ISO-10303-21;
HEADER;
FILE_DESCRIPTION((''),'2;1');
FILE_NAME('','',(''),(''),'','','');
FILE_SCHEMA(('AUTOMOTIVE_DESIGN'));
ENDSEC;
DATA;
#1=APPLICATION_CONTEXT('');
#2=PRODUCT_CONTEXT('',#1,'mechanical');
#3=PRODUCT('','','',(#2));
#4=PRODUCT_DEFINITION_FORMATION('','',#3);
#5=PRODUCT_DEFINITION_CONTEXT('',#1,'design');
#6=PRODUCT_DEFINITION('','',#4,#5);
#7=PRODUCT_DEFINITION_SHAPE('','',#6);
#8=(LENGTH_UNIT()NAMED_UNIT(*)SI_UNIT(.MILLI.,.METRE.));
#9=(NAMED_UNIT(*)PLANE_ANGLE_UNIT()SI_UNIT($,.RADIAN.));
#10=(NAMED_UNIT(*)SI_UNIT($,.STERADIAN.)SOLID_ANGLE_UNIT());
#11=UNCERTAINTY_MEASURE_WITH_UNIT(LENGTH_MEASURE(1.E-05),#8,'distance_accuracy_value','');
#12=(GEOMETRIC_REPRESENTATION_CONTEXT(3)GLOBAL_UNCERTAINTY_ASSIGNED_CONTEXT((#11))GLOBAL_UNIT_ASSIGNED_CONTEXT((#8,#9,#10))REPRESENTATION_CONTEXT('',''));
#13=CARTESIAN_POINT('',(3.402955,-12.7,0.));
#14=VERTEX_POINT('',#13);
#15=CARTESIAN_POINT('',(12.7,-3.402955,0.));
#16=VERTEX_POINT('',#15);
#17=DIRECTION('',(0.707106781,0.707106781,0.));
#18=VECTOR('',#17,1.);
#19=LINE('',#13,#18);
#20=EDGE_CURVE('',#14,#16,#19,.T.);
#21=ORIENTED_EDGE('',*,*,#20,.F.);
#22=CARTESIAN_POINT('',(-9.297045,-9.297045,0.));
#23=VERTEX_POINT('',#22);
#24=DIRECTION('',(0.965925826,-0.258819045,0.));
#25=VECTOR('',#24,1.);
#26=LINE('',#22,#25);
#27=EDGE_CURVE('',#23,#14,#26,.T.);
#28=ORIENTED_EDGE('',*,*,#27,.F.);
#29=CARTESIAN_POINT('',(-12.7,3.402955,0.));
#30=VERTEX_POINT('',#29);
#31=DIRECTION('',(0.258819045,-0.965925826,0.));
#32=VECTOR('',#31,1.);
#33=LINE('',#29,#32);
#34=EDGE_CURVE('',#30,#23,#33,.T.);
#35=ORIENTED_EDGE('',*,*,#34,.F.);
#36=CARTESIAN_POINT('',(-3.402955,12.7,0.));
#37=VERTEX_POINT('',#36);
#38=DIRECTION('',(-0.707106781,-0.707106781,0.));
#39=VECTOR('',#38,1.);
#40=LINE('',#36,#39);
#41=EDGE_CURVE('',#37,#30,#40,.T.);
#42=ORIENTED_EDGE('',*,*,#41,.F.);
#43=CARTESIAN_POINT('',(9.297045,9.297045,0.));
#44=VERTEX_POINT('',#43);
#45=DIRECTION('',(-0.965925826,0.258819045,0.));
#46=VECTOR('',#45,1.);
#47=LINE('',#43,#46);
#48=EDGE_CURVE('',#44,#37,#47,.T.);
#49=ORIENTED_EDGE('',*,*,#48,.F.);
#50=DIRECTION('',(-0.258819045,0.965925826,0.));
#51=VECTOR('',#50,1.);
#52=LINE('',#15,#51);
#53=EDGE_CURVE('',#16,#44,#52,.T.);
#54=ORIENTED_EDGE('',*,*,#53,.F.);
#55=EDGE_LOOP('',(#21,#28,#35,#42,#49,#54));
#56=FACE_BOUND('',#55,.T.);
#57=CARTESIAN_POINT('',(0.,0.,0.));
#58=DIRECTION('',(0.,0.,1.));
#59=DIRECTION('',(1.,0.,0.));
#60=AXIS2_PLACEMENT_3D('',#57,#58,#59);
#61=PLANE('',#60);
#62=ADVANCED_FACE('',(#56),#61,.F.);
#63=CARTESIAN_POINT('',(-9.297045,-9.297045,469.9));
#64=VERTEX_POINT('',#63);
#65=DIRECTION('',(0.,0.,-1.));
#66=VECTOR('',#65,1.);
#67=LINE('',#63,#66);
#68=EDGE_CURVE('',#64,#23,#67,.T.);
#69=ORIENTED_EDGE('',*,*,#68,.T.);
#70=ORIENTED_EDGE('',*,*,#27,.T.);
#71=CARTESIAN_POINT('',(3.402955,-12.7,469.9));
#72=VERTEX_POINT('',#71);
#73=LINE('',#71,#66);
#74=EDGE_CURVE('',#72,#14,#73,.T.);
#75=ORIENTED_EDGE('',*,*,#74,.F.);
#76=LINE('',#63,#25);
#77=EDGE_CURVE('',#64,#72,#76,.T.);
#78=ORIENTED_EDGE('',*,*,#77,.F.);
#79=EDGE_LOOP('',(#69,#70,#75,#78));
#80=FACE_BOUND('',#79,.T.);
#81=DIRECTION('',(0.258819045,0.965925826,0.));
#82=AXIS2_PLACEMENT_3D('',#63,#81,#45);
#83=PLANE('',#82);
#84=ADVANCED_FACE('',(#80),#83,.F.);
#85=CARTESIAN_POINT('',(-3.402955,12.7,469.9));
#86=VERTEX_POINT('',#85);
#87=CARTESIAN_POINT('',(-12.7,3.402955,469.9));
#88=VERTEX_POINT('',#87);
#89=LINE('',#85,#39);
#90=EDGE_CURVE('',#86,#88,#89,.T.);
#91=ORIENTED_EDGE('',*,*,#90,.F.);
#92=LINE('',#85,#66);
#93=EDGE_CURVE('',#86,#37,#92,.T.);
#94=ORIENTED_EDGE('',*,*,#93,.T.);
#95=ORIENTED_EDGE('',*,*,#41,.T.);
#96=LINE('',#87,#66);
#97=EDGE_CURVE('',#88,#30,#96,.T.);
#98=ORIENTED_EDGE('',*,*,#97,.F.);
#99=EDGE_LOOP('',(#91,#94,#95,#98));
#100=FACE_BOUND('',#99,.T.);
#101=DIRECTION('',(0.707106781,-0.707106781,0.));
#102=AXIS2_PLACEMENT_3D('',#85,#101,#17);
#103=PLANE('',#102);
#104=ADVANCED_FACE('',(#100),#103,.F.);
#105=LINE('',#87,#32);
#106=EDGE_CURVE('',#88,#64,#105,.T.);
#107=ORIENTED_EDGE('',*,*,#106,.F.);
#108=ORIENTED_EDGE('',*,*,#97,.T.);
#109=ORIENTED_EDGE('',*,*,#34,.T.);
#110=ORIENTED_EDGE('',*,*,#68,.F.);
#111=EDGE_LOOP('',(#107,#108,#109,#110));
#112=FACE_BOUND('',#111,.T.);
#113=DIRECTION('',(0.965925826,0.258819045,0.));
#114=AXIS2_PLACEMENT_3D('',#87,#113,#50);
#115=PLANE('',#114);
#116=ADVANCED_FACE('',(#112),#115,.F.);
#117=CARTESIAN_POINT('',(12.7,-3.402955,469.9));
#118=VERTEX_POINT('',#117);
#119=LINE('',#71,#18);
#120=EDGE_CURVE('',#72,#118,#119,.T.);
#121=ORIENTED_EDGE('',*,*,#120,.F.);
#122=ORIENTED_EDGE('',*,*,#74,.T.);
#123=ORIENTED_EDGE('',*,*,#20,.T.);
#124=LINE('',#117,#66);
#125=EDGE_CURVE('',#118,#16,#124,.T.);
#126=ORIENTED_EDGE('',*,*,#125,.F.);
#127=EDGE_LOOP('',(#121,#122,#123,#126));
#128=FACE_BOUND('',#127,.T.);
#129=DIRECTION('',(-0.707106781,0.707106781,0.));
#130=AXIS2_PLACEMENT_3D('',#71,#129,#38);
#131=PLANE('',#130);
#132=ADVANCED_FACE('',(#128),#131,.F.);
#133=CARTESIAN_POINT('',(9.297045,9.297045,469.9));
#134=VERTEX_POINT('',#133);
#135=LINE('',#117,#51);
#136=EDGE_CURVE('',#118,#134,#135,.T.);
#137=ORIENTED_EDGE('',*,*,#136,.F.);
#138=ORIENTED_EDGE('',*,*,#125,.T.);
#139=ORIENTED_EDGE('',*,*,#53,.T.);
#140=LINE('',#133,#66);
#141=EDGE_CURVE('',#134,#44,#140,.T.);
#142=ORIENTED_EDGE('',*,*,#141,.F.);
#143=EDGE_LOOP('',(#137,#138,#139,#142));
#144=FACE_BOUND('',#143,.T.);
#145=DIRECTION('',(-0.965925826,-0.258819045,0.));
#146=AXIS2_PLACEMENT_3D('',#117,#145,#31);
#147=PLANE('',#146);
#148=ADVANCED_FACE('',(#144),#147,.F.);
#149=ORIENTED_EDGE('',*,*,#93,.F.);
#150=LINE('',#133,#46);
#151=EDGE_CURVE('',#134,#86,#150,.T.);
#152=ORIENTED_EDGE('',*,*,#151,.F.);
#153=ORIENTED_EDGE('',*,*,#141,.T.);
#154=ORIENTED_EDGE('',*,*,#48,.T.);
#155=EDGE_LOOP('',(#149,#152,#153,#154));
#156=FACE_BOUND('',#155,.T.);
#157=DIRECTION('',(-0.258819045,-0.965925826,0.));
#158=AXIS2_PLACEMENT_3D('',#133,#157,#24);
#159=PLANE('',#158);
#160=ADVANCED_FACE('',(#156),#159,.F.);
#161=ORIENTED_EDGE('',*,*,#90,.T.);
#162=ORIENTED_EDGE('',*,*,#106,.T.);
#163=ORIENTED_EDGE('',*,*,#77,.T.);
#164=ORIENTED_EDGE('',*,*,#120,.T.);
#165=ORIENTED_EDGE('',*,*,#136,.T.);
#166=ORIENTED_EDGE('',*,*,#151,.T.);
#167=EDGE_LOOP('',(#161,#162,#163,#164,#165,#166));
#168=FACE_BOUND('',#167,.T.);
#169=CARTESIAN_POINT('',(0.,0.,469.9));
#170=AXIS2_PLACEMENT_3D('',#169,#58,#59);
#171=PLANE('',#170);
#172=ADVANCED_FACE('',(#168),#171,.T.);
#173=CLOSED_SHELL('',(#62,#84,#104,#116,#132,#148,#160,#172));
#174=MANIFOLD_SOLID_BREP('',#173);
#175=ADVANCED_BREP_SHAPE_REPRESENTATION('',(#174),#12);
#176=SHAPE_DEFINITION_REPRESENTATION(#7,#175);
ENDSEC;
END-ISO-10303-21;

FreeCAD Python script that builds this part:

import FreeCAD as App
import Part
import Sketcher
Q = App.Units.Quantity

doc = App.newDocument("Part")
body = doc.addObject("PartDesign::Body", "Body")

sketch1 = doc.addObject("Sketcher::SketchObject", "Sketch")
body.addObject(sketch1)
sketch1.AttachmentSupport = (doc.XY_Plane, [""])
sketch1.MapMode = "FlatFace"
sketch1.addGeometry([
    Part.LineSegment(App.Vector(13, -3, 0), App.Vector(9, 9, 0)),
    Part.LineSegment(App.Vector(9, 9, 0), App.Vector(-3, 13, 0)),
    Part.LineSegment(App.Vector(-3, 13, 0), App.Vector(-13, 3, 0)),
    Part.LineSegment(App.Vector(-13, 3, 0), App.Vector(-9, -9, 0)),
    Part.LineSegment(App.Vector(-9, -9, 0), App.Vector(3, -13, 0)),
    Part.LineSegment(App.Vector(3, -13, 0), App.Vector(13, -3, 0)),
], False)
sketch1.addConstraint([
    Sketcher.Constraint("Coincident", 0, 2, 1, 1),
    Sketcher.Constraint("Coincident", 1, 2, 2, 1),
    Sketcher.Constraint("Coincident", 2, 2, 3, 1),
    Sketcher.Constraint("Coincident", 3, 2, 4, 1),
    Sketcher.Constraint("Coincident", 4, 2, 5, 1),
    Sketcher.Constraint("Coincident", 5, 2, 0, 1),
    Sketcher.Constraint("Symmetric", 0, 2, 3, 2, -1, 1),
    Sketcher.Constraint("Symmetric", 1, 2, 4, 2, -1, 1),
    Sketcher.Constraint("Symmetric", 2, 2, 5, 2, -1, 1),
    Sketcher.Constraint("Equal", 0, 1),
    Sketcher.Constraint("Equal", 1, 2),
    Sketcher.Constraint("Angle", 0, Q("105 deg")),
    Sketcher.Constraint("Angle", 1, Q("165 deg")),
    Sketcher.Constraint("Angle", 2, Q("-135 deg")),
    Sketcher.Constraint("DistanceY", 4, 2, 1, 2, Q("1 in")),
])
pad1 = doc.addObject("PartDesign::Pad", "Pad")
body.addObject(pad1)
pad1.Profile = sketch1
pad1.Length = Q("18.5 in")

doc.recompute()
